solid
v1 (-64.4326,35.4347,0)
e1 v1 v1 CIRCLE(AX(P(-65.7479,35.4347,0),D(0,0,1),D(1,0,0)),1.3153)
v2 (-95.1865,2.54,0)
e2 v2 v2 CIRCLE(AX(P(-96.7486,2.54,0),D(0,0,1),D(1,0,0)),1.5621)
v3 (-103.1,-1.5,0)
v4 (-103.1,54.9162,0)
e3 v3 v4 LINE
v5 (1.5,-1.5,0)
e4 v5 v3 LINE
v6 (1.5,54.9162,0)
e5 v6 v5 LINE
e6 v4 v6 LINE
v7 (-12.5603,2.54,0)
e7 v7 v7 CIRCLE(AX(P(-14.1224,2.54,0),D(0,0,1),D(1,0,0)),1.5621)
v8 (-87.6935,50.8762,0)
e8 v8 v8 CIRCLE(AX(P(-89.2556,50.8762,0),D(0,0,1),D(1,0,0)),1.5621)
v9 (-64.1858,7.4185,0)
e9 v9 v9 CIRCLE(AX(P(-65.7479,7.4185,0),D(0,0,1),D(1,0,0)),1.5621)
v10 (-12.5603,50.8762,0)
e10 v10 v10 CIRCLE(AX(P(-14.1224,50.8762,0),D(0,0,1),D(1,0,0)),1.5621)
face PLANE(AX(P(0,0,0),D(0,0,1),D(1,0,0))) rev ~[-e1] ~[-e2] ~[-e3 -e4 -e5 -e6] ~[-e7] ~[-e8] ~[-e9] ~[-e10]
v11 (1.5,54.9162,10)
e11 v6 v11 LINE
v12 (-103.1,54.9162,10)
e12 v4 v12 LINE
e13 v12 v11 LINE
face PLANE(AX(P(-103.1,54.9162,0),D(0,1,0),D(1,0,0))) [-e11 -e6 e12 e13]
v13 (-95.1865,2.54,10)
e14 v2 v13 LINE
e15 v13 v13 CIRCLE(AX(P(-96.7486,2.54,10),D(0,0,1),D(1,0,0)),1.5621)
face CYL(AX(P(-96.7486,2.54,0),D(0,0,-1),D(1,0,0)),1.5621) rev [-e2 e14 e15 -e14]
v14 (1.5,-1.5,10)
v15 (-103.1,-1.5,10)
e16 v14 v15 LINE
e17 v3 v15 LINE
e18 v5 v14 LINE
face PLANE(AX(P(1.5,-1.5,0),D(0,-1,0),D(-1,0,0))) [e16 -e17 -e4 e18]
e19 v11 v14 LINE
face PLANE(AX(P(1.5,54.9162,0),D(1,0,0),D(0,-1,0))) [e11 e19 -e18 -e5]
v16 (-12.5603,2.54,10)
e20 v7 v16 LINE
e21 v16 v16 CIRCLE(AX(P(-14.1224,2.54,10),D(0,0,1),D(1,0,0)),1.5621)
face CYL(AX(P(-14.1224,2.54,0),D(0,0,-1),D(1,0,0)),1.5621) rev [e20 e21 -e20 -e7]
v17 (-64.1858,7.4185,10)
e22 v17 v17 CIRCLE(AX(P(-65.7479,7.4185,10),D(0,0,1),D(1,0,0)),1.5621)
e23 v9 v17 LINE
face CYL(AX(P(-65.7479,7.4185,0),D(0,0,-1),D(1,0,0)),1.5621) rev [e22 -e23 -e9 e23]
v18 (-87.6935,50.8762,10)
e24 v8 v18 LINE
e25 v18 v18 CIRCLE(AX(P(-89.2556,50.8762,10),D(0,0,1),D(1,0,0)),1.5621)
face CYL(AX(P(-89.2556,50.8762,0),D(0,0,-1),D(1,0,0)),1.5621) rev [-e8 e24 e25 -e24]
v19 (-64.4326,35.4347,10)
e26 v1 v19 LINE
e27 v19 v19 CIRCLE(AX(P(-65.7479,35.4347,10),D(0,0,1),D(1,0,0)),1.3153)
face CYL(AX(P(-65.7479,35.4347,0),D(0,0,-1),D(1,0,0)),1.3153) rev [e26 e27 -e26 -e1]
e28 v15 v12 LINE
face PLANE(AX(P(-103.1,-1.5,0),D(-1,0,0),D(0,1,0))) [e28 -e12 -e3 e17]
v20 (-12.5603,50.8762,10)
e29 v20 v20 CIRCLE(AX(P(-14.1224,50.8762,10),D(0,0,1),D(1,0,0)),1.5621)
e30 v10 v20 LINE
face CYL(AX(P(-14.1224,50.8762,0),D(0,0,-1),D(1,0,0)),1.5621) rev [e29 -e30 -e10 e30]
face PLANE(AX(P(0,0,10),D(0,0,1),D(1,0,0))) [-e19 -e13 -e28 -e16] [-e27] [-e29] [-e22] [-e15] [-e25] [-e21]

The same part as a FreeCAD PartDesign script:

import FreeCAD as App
import Part
import Sketcher
Q = App.Units.Quantity


def add_polygon(sketch, points):
    """Adds a closed chain of lines whose ends are joined by coincident constraints."""
    first, n = sketch.GeometryCount, len(points)
    for a, b in zip(points, points[1:] + points[:1]):
        sketch.addGeometry(Part.LineSegment(App.Vector(*a, 0), App.Vector(*b, 0)), False)
    for i in range(n):
        sketch.addConstraint(Sketcher.Constraint("Coincident", first + i, 2, first + (i + 1) % n, 1))

doc = App.newDocument("Part")
params = doc.addObject("Spreadsheet::Sheet", "Params")
for row, (alias, value) in enumerate([
    ("sketch1_diameter", "0.123 in"),
    ("pad1_length", "0.3937008 in"),
], start=1):
    params.set(f"A{row}", alias)
    params.set(f"B{row}", "=" + value)
    params.setAlias(f"B{row}", alias)

body = doc.addObject("PartDesign::Body", "Body")

# Sketch on XY plane
sketch1 = body.newObject("Sketcher::SketchObject", "Sketch")
sketch1.AttachmentSupport = (doc.getObject("XY_Plane"), [""])
sketch1.MapMode = "FlatFace"
add_polygon(sketch1, [(1.5, 54.9), (-103.1, 54.9), (-103.1, -1.5), (1.5, -1.5)])  # lines 0-3
sketch1.addGeometry(Part.Circle(App.Vector(-14.1, 50.9, 0), App.Vector(0, 0, 1), 1.6), False)  # 4
sketch1.addGeometry(Part.Circle(App.Vector(-96.7, 2.5, 0), App.Vector(0, 0, 1), 1.6), False)  # 5
sketch1.addGeometry(Part.Circle(App.Vector(-65.7, 7.4, 0), App.Vector(0, 0, 1), 1.6), False)  # 6
sketch1.addGeometry(Part.Circle(App.Vector(-14.1, 2.5, 0), App.Vector(0, 0, 1), 1.6), False)  # 7
sketch1.addGeometry(Part.Circle(App.Vector(-65.7, 35.4, 0), App.Vector(0, 0, 1), 1.3), False)  # 8
sketch1.addGeometry(Part.Circle(App.Vector(-89.3, 50.9, 0), App.Vector(0, 0, 1), 1.6), False)  # 9
sketch1.addConstraint(Sketcher.Constraint("Horizontal", 0))
sketch1.addConstraint(Sketcher.Constraint("Vertical", 1))
sketch1.addConstraint(Sketcher.Constraint("Horizontal", 2))
sketch1.addConstraint(Sketcher.Constraint("Vertical", 3))
sketch1.addConstraint(Sketcher.Constraint("Equal", 4, 5))
sketch1.addConstraint(Sketcher.Constraint("Equal", 5, 6))
sketch1.addConstraint(Sketcher.Constraint("Equal", 6, 7))
sketch1.addConstraint(Sketcher.Constraint("Equal", 7, 9))
sketch1.addConstraint(Sketcher.Constraint("Horizontal", 5, 3, 7, 3))
sketch1.addConstraint(Sketcher.Constraint("Horizontal", 4, 3, 9, 3))
sketch1.addConstraint(Sketcher.Constraint("Vertical", 4, 3, 7, 3))
sketch1.addConstraint(Sketcher.Constraint("Vertical", 6, 3, 8, 3))
sketch1.addConstraint(Sketcher.Constraint("Diameter", 4, Q("0.123 in")))
sketch1.addConstraint(Sketcher.Constraint("DistanceY", -1, 1, 5, 3, Q("0.1 in")))
sketch1.addConstraint(Sketcher.Constraint("Diameter", 8, Q("2.6306 mm")))
sketch1.addConstraint(Sketcher.Constraint("DistanceY", 1, 2, -1, 1, Q("1.5 mm")))
sketch1.addConstraint(Sketcher.Constraint("DistanceX", -1, 1, 2, 2, Q("1.5 mm")))
sketch1.addConstraint(Sketcher.Constraint("DistanceY", 6, 3, 0, 2, Q("1.87 in")))
sketch1.addConstraint(Sketcher.Constraint("DistanceX", 0, 2, 0, 1, Q("4.1181 in")))
sketch1.addConstraint(Sketcher.Constraint("DistanceY", 1, 2, 1, 1, Q("2.2211 in")))
sketch1.addConstraint(Sketcher.Constraint("DistanceX", 4, 3, -1, 1, Q("0.556 in")))
sketch1.addConstraint(Sketcher.Constraint("DistanceY", -1, 1, 4, 3, Q("2.003 in")))
sketch1.addConstraint(Sketcher.Constraint("DistanceX", 5, 3, -1, 1, Q("3.809 in")))
sketch1.addConstraint(Sketcher.Constraint("DistanceX", 9, 3, -1, 1, Q("3.514 in")))
sketch1.addConstraint(Sketcher.Constraint("DistanceY", 6, 3, 8, 3, Q("1.103 in")))
sketch1.addConstraint(Sketcher.Constraint("DistanceX", 6, 3, -1, 1, Q("2.5885 in")))
sketch1.setExpression("Constraints[16]", "Params.sketch1_diameter")
pad1 = body.newObject("PartDesign::Pad", "Pad")
pad1.Profile = sketch1
pad1.setExpression("Length", "Params.pad1_length")

doc.recompute()
